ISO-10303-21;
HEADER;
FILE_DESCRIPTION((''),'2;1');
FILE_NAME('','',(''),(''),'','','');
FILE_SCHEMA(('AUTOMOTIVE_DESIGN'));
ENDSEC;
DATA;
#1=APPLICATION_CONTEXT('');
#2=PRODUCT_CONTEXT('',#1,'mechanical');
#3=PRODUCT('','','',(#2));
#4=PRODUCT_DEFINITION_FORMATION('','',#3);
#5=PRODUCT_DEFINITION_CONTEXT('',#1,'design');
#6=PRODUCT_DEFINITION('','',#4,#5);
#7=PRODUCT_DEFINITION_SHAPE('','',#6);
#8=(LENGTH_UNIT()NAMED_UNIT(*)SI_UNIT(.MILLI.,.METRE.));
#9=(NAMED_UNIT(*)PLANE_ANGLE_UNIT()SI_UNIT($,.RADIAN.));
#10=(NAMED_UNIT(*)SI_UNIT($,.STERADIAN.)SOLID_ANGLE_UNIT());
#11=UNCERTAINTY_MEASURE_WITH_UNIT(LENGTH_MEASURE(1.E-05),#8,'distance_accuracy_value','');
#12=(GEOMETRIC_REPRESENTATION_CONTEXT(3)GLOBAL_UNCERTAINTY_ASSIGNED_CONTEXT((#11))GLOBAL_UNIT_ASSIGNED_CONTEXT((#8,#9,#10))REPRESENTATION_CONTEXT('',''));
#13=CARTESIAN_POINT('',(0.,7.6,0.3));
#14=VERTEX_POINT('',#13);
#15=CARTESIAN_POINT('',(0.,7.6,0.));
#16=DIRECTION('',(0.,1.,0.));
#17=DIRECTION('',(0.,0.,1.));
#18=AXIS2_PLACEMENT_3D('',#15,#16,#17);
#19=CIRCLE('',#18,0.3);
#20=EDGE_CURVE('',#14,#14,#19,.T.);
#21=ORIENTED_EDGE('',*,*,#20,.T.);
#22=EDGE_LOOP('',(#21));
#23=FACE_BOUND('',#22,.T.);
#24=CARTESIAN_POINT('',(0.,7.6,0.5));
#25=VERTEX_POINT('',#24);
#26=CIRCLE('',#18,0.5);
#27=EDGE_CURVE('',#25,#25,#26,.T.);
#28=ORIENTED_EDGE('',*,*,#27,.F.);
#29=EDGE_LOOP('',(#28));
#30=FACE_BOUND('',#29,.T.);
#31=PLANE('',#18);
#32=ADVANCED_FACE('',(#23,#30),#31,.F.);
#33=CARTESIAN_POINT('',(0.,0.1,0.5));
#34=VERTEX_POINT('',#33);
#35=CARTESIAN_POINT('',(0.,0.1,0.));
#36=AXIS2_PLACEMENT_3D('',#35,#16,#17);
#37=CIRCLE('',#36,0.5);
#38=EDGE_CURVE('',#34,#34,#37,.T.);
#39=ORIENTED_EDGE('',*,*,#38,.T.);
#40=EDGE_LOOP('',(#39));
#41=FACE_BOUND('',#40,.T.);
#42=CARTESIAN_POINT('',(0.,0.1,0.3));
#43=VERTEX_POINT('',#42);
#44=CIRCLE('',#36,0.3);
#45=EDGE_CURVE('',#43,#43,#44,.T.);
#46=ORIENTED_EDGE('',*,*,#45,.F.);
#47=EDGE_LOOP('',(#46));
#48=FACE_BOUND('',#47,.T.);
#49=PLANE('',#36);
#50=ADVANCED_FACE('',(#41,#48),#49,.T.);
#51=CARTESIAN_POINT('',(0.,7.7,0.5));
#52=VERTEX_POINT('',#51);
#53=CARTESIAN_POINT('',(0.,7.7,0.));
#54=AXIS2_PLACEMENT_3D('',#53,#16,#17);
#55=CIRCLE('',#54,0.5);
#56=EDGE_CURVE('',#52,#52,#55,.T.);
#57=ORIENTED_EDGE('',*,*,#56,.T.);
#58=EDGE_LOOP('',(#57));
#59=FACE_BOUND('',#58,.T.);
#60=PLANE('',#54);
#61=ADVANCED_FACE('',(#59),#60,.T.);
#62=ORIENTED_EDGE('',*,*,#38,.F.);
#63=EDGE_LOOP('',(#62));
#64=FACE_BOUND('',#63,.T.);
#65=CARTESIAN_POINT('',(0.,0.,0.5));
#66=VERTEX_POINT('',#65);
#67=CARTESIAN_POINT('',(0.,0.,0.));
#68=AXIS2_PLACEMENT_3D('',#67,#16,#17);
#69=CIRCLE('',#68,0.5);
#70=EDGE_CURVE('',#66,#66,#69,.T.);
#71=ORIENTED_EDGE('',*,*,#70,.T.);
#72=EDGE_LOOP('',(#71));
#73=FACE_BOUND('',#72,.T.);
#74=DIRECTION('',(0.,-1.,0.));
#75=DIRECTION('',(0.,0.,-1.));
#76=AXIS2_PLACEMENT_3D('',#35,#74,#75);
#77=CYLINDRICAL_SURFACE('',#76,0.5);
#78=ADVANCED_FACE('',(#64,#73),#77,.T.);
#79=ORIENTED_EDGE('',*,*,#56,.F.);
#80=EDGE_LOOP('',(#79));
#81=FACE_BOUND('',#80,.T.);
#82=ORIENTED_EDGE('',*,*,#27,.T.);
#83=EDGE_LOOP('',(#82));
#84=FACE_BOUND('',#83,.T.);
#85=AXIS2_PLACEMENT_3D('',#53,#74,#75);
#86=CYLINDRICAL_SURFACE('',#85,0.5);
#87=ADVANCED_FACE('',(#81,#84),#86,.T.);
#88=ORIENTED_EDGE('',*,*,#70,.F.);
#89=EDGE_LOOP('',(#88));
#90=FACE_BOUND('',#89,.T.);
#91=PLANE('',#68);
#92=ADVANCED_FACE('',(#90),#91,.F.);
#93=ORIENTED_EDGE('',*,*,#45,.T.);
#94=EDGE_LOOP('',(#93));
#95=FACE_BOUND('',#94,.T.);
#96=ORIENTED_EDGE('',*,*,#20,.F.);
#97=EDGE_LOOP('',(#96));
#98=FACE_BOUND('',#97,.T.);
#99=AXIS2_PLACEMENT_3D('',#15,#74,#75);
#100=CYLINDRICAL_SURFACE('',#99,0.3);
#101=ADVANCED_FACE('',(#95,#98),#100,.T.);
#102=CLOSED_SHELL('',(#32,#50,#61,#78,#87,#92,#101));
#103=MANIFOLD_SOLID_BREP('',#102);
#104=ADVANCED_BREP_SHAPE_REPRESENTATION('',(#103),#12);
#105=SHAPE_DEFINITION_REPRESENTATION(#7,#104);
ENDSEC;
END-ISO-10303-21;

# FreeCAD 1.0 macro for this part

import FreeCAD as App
import Part
import Sketcher

V = App.Vector

doc = App.newDocument("Part")
body = doc.addObject("PartDesign::Body", "Body")

sketch1 = body.newObject("Sketcher::SketchObject", "Sketch")
sketch1.AttachmentSupport = (doc.getObject("XZ_Plane"), [""])
sketch1.MapMode = "FlatFace"
sketch1.addGeometry(Part.Circle(V(0, 0, 0), V(0, 0, 1), 0.5), False)
sketch1.addConstraint(Sketcher.Constraint("Coincident", 0, 3, -1, 1))
sketch1.addConstraint(Sketcher.Constraint("Diameter", 0, 1.0))
pad1 = body.newObject("PartDesign::Pad", "Pad")
pad1.Profile = sketch1
pad1.Length = 0.1
pad1.Reversed = True

sketch2 = body.newObject("Sketcher::SketchObject", "Sketch001")
sketch2.AttachmentSupport = (doc.getObject("XZ_Plane"), [""])
sketch2.MapMode = "FlatFace"
sketch2.AttachmentOffset = App.Placement(V(0, 0, -0.1), App.Rotation())
sketch2.addGeometry(Part.Circle(V(0, 0, 0), V(0, 0, 1), 0.3), False)
sketch2.addConstraint(Sketcher.Constraint("Coincident", 0, 3, -1, 1))
sketch2.addConstraint(Sketcher.Constraint("Diameter", 0, 0.6))
pad2 = body.newObject("PartDesign::Pad", "Pad001")
pad2.Profile = sketch2
pad2.Length = 7.5
pad2.Reversed = True

sketch3 = body.newObject("Sketcher::SketchObject", "Sketch002")
sketch3.AttachmentSupport = (doc.getObject("XZ_Plane"), [""])
sketch3.MapMode = "FlatFace"
sketch3.AttachmentOffset = App.Placement(V(0, 0, -7.6), App.Rotation())
sketch3.addGeometry(Part.Circle(V(0, 0, 0), V(0, 0, 1), 0.5), False)
sketch3.addConstraint(Sketcher.Constraint("Coincident", 0, 3, -1, 1))
sketch3.addConstraint(Sketcher.Constraint("Diameter", 0, 1.0))
pad3 = body.newObject("PartDesign::Pad", "Pad002")
pad3.Profile = sketch3
pad3.Length = 0.1
pad3.Reversed = True

doc.recompute()
